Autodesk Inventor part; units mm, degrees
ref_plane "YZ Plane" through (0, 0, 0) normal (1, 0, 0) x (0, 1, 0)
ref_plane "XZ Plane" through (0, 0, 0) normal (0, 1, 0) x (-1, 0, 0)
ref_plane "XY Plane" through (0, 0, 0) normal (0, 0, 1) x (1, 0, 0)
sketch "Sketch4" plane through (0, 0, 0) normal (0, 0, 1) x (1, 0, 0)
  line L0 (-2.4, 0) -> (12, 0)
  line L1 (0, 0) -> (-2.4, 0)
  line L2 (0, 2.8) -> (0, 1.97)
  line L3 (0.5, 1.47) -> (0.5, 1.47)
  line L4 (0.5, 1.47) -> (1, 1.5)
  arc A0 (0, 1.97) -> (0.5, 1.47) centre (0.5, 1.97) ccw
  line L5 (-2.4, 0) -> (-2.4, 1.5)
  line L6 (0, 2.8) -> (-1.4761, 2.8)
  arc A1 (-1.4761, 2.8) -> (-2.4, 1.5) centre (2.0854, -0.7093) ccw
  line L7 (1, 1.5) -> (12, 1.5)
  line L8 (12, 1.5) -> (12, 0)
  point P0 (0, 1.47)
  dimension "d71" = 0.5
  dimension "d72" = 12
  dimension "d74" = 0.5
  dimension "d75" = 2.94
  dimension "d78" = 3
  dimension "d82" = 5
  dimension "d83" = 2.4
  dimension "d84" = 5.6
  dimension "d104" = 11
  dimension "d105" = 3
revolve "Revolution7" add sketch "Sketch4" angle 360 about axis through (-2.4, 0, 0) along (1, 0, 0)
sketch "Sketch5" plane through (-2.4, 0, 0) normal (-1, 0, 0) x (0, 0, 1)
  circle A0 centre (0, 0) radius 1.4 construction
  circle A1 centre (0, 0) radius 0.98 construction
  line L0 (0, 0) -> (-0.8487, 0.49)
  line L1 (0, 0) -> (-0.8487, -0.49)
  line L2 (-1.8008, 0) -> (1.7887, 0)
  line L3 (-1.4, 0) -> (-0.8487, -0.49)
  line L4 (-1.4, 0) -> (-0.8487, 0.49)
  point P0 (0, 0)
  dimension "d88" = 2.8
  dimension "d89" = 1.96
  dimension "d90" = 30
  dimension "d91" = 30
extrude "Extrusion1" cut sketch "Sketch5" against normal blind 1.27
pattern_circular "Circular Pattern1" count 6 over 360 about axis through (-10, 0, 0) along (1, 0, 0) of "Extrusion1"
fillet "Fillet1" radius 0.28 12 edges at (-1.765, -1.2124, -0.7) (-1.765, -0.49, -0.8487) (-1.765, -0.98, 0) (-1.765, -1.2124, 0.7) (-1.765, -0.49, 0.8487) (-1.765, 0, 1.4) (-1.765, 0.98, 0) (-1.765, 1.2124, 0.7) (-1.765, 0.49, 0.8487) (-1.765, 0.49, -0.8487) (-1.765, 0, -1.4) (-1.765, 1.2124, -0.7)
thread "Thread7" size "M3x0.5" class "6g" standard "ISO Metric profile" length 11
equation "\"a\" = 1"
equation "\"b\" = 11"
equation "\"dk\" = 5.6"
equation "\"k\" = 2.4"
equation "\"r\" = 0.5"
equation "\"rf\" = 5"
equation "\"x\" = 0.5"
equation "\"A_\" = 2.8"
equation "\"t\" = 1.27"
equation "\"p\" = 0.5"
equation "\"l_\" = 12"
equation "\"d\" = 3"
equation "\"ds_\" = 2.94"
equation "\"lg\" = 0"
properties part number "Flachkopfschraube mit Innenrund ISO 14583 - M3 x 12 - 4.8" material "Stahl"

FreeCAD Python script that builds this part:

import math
import FreeCAD as App
import Part
import Sketcher

V = App.Vector
Q = App.Units.Quantity


def edges_at(feature, points):
    """Names of the edges that pass closest to the given points."""
    edges = feature.Shape.Edges
    near = lambda p: min(range(len(edges)), key=lambda i: edges[i].distToShape(Part.Vertex(*p))[0])
    return sorted({f"Edge{near(p) + 1}" for p in points})


def add_polygon(sketch, points):
    """Adds a closed chain of lines whose ends are joined by coincident constraints."""
    first, n = sketch.GeometryCount, len(points)
    for a, b in zip(points, points[1:] + points[:1]):
        sketch.addGeometry(Part.LineSegment(App.Vector(*a, 0), App.Vector(*b, 0)), False)
    for i in range(n):
        sketch.addConstraint(Sketcher.Constraint("Coincident", first + i, 2, first + (i + 1) % n, 1))

doc = App.newDocument("Part")
params = doc.addObject("Spreadsheet::Sheet", "Params")
for row, (alias, value) in enumerate([
    ("sketch1_radius", "0.5 mm"),
    ("sketch1_width", "11 mm"),
    ("sketch1_height", "1.5 mm"),
    ("sketch1_height2", "0.83 mm"),
    ("revolution_angle", "360 deg"),
    ("pocket1_length", "1.27 mm"),
    ("fillet_radius", "0.28 mm"),
], start=1):
    params.set(f"A{row}", alias)
    params.set(f"B{row}", "=" + value)
    params.setAlias(f"B{row}", alias)

body = doc.addObject("PartDesign::Body", "Body")

# Sketch on XY plane
sketch1 = body.newObject("Sketcher::SketchObject", "Sketch")
sketch1.AttachmentSupport = (doc.getObject("XY_Plane"), [""])
sketch1.MapMode = "FlatFace"
sketch1.addGeometry([
    Part.LineSegment(V(-2.4, 1.5, 0), V(-2.4, 0, 0)),  # 0
    Part.LineSegment(V(-2.4, 0, 0), V(12, 0, 0)),  # 1
    Part.LineSegment(V(12, 0, 0), V(12, 1.5, 0)),  # 2
    Part.LineSegment(V(12, 1.5, 0), V(1, 1.5, 0)),  # 3
    Part.LineSegment(V(1, 1.5, 0), V(0.5, 1.5, 0)),  # 4
    Part.ArcOfCircle(Part.Circle(V(0.5, 2, 0), V(0, 0, 1), 0.5), math.radians(180), math.radians(270)),  # 5
    Part.LineSegment(V(0, 2, 0), V(0, 2.8, 0)),  # 6
    Part.LineSegment(V(0, 2.8, 0), V(-1.5, 2.8, 0)),  # 7
    Part.ArcOfCircle(Part.Circle(V(2.1, -0.7, 0), V(0, 0, 1), 5), math.radians(135.42), math.radians(153.77)),  # 8
], False)
sketch1.addConstraint([
    Sketcher.Constraint("Coincident", 0, 2, 1, 1),
    Sketcher.Constraint("Coincident", 1, 2, 2, 1),
    Sketcher.Constraint("Coincident", 2, 2, 3, 1),
    Sketcher.Constraint("Coincident", 3, 2, 4, 1),
    Sketcher.Constraint("Coincident", 4, 2, 5, 2),
    Sketcher.Constraint("Tangent", 5, 1, 6, 1),
    Sketcher.Constraint("Coincident", 6, 2, 7, 1),
    Sketcher.Constraint("Coincident", 7, 2, 8, 1),
    Sketcher.Constraint("Coincident", 8, 2, 0, 1),
    Sketcher.Constraint("Vertical", 0),
    Sketcher.Constraint("Horizontal", 1),
    Sketcher.Constraint("Vertical", 2),
    Sketcher.Constraint("Horizontal", 3),
    Sketcher.Constraint("Vertical", 6),
    Sketcher.Constraint("Horizontal", 7),
    Sketcher.Constraint("PointOnObject", 0, 2, -1),
    Sketcher.Constraint("PointOnObject", 5, 1, -2),
    Sketcher.Constraint("Horizontal", 3, 2, 8, 2),
    Sketcher.Constraint("Vertical", 5, 3, 4, 2),
    Sketcher.Constraint("Radius", 5, 0.5),
    Sketcher.Constraint("DistanceX", 3, 2, 3, 1, 11.0),
    Sketcher.Constraint("DistanceX", -1, 1, 1, 2, 12.0),
    Sketcher.Constraint("DistanceX", 0, 2, -1, 1, 2.4),
    Sketcher.Constraint("DistanceY", 0, 2, 0, 1, 1.5),
    Sketcher.Constraint("DistanceY", 6, 1, 6, 2, 0.83),
    Sketcher.Constraint("DistanceY", -1, 1, 6, 2, 2.8),
    Sketcher.Constraint("Radius", 8, 5.0013),
    Sketcher.Constraint("DistanceX", 7, 2, 7, 1, 1.476),
])
sketch1.setExpression("Constraints[19]", "Params.sketch1_radius")
sketch1.setExpression("Constraints[20]", "Params.sketch1_width")
sketch1.setExpression("Constraints[23]", "Params.sketch1_height")
sketch1.setExpression("Constraints[24]", "Params.sketch1_height2")
revolution = body.newObject("PartDesign::Revolution", "Revolution")
revolution.Profile = sketch1
revolution.ReferenceAxis = (sketch1, ["H_Axis"])
revolution.setExpression("Angle", "Params.revolution_angle")

# Sketch on YZ plane
sketch2 = body.newObject("Sketcher::SketchObject", "Sketch001")
sketch2.AttachmentSupport = (doc.getObject("YZ_Plane"), [""])
sketch2.MapMode = "FlatFace"
sketch2.AttachmentOffset = App.Placement(V(0, 0, -2.4), App.Rotation())
add_polygon(sketch2, [(0.5, -0.8), (0, -1.4), (-0.5, -0.8), (0, 0)])  # lines 0-3
sketch2.addConstraint([
    Sketcher.Constraint("Coincident", 2, 2, -1, 1),
    Sketcher.Constraint("Symmetric", 1, 2, 3, 2, -2),
    Sketcher.Constraint("PointOnObject", 0, 2, -2),
    Sketcher.Constraint("Angle", 2, Q("59.9999 deg")),
    Sketcher.Constraint("DistanceY", 0, 2, -1, 1, 1.4),
    Sketcher.Constraint("Angle", 0, Q("-131.631 deg")),
])
pocket1 = body.newObject("PartDesign::Pocket", "Pocket")
pocket1.Profile = sketch2
pocket1.setExpression("Length", "Params.pocket1_length")
pocket1.Reversed = True
doc.recompute()

polarpattern = body.newObject("PartDesign::PolarPattern", "PolarPattern")
polarpattern.Originals = [pocket1]
polarpattern.Axis = (doc.getObject("X_Axis"), [""])
polarpattern.Angle = 360
polarpattern.Occurrences = 6
body.Tip = polarpattern
doc.recompute()

fillet = body.newObject("PartDesign::Fillet", "Fillet")
fillet.Base = (polarpattern, edges_at(polarpattern, [
    (-1.765, -1.212, -0.7),
    (-1.765, -0.49, -0.849),
    (-1.765, -0.98, 0),
    (-1.765, -1.212, 0.7),
    (-1.765, -0.49, 0.849),
    (-1.765, 0, 1.4),
    (-1.765, 0.98, 0),
    (-1.765, 1.212, 0.7),
    (-1.765, 0.49, 0.849),
    (-1.765, 0.49, -0.849),
    (-1.765, 0, -1.4),
    (-1.765, 1.212, -0.7),
]))
fillet.setExpression("Radius", "Params.fillet_radius")

doc.recompute()
